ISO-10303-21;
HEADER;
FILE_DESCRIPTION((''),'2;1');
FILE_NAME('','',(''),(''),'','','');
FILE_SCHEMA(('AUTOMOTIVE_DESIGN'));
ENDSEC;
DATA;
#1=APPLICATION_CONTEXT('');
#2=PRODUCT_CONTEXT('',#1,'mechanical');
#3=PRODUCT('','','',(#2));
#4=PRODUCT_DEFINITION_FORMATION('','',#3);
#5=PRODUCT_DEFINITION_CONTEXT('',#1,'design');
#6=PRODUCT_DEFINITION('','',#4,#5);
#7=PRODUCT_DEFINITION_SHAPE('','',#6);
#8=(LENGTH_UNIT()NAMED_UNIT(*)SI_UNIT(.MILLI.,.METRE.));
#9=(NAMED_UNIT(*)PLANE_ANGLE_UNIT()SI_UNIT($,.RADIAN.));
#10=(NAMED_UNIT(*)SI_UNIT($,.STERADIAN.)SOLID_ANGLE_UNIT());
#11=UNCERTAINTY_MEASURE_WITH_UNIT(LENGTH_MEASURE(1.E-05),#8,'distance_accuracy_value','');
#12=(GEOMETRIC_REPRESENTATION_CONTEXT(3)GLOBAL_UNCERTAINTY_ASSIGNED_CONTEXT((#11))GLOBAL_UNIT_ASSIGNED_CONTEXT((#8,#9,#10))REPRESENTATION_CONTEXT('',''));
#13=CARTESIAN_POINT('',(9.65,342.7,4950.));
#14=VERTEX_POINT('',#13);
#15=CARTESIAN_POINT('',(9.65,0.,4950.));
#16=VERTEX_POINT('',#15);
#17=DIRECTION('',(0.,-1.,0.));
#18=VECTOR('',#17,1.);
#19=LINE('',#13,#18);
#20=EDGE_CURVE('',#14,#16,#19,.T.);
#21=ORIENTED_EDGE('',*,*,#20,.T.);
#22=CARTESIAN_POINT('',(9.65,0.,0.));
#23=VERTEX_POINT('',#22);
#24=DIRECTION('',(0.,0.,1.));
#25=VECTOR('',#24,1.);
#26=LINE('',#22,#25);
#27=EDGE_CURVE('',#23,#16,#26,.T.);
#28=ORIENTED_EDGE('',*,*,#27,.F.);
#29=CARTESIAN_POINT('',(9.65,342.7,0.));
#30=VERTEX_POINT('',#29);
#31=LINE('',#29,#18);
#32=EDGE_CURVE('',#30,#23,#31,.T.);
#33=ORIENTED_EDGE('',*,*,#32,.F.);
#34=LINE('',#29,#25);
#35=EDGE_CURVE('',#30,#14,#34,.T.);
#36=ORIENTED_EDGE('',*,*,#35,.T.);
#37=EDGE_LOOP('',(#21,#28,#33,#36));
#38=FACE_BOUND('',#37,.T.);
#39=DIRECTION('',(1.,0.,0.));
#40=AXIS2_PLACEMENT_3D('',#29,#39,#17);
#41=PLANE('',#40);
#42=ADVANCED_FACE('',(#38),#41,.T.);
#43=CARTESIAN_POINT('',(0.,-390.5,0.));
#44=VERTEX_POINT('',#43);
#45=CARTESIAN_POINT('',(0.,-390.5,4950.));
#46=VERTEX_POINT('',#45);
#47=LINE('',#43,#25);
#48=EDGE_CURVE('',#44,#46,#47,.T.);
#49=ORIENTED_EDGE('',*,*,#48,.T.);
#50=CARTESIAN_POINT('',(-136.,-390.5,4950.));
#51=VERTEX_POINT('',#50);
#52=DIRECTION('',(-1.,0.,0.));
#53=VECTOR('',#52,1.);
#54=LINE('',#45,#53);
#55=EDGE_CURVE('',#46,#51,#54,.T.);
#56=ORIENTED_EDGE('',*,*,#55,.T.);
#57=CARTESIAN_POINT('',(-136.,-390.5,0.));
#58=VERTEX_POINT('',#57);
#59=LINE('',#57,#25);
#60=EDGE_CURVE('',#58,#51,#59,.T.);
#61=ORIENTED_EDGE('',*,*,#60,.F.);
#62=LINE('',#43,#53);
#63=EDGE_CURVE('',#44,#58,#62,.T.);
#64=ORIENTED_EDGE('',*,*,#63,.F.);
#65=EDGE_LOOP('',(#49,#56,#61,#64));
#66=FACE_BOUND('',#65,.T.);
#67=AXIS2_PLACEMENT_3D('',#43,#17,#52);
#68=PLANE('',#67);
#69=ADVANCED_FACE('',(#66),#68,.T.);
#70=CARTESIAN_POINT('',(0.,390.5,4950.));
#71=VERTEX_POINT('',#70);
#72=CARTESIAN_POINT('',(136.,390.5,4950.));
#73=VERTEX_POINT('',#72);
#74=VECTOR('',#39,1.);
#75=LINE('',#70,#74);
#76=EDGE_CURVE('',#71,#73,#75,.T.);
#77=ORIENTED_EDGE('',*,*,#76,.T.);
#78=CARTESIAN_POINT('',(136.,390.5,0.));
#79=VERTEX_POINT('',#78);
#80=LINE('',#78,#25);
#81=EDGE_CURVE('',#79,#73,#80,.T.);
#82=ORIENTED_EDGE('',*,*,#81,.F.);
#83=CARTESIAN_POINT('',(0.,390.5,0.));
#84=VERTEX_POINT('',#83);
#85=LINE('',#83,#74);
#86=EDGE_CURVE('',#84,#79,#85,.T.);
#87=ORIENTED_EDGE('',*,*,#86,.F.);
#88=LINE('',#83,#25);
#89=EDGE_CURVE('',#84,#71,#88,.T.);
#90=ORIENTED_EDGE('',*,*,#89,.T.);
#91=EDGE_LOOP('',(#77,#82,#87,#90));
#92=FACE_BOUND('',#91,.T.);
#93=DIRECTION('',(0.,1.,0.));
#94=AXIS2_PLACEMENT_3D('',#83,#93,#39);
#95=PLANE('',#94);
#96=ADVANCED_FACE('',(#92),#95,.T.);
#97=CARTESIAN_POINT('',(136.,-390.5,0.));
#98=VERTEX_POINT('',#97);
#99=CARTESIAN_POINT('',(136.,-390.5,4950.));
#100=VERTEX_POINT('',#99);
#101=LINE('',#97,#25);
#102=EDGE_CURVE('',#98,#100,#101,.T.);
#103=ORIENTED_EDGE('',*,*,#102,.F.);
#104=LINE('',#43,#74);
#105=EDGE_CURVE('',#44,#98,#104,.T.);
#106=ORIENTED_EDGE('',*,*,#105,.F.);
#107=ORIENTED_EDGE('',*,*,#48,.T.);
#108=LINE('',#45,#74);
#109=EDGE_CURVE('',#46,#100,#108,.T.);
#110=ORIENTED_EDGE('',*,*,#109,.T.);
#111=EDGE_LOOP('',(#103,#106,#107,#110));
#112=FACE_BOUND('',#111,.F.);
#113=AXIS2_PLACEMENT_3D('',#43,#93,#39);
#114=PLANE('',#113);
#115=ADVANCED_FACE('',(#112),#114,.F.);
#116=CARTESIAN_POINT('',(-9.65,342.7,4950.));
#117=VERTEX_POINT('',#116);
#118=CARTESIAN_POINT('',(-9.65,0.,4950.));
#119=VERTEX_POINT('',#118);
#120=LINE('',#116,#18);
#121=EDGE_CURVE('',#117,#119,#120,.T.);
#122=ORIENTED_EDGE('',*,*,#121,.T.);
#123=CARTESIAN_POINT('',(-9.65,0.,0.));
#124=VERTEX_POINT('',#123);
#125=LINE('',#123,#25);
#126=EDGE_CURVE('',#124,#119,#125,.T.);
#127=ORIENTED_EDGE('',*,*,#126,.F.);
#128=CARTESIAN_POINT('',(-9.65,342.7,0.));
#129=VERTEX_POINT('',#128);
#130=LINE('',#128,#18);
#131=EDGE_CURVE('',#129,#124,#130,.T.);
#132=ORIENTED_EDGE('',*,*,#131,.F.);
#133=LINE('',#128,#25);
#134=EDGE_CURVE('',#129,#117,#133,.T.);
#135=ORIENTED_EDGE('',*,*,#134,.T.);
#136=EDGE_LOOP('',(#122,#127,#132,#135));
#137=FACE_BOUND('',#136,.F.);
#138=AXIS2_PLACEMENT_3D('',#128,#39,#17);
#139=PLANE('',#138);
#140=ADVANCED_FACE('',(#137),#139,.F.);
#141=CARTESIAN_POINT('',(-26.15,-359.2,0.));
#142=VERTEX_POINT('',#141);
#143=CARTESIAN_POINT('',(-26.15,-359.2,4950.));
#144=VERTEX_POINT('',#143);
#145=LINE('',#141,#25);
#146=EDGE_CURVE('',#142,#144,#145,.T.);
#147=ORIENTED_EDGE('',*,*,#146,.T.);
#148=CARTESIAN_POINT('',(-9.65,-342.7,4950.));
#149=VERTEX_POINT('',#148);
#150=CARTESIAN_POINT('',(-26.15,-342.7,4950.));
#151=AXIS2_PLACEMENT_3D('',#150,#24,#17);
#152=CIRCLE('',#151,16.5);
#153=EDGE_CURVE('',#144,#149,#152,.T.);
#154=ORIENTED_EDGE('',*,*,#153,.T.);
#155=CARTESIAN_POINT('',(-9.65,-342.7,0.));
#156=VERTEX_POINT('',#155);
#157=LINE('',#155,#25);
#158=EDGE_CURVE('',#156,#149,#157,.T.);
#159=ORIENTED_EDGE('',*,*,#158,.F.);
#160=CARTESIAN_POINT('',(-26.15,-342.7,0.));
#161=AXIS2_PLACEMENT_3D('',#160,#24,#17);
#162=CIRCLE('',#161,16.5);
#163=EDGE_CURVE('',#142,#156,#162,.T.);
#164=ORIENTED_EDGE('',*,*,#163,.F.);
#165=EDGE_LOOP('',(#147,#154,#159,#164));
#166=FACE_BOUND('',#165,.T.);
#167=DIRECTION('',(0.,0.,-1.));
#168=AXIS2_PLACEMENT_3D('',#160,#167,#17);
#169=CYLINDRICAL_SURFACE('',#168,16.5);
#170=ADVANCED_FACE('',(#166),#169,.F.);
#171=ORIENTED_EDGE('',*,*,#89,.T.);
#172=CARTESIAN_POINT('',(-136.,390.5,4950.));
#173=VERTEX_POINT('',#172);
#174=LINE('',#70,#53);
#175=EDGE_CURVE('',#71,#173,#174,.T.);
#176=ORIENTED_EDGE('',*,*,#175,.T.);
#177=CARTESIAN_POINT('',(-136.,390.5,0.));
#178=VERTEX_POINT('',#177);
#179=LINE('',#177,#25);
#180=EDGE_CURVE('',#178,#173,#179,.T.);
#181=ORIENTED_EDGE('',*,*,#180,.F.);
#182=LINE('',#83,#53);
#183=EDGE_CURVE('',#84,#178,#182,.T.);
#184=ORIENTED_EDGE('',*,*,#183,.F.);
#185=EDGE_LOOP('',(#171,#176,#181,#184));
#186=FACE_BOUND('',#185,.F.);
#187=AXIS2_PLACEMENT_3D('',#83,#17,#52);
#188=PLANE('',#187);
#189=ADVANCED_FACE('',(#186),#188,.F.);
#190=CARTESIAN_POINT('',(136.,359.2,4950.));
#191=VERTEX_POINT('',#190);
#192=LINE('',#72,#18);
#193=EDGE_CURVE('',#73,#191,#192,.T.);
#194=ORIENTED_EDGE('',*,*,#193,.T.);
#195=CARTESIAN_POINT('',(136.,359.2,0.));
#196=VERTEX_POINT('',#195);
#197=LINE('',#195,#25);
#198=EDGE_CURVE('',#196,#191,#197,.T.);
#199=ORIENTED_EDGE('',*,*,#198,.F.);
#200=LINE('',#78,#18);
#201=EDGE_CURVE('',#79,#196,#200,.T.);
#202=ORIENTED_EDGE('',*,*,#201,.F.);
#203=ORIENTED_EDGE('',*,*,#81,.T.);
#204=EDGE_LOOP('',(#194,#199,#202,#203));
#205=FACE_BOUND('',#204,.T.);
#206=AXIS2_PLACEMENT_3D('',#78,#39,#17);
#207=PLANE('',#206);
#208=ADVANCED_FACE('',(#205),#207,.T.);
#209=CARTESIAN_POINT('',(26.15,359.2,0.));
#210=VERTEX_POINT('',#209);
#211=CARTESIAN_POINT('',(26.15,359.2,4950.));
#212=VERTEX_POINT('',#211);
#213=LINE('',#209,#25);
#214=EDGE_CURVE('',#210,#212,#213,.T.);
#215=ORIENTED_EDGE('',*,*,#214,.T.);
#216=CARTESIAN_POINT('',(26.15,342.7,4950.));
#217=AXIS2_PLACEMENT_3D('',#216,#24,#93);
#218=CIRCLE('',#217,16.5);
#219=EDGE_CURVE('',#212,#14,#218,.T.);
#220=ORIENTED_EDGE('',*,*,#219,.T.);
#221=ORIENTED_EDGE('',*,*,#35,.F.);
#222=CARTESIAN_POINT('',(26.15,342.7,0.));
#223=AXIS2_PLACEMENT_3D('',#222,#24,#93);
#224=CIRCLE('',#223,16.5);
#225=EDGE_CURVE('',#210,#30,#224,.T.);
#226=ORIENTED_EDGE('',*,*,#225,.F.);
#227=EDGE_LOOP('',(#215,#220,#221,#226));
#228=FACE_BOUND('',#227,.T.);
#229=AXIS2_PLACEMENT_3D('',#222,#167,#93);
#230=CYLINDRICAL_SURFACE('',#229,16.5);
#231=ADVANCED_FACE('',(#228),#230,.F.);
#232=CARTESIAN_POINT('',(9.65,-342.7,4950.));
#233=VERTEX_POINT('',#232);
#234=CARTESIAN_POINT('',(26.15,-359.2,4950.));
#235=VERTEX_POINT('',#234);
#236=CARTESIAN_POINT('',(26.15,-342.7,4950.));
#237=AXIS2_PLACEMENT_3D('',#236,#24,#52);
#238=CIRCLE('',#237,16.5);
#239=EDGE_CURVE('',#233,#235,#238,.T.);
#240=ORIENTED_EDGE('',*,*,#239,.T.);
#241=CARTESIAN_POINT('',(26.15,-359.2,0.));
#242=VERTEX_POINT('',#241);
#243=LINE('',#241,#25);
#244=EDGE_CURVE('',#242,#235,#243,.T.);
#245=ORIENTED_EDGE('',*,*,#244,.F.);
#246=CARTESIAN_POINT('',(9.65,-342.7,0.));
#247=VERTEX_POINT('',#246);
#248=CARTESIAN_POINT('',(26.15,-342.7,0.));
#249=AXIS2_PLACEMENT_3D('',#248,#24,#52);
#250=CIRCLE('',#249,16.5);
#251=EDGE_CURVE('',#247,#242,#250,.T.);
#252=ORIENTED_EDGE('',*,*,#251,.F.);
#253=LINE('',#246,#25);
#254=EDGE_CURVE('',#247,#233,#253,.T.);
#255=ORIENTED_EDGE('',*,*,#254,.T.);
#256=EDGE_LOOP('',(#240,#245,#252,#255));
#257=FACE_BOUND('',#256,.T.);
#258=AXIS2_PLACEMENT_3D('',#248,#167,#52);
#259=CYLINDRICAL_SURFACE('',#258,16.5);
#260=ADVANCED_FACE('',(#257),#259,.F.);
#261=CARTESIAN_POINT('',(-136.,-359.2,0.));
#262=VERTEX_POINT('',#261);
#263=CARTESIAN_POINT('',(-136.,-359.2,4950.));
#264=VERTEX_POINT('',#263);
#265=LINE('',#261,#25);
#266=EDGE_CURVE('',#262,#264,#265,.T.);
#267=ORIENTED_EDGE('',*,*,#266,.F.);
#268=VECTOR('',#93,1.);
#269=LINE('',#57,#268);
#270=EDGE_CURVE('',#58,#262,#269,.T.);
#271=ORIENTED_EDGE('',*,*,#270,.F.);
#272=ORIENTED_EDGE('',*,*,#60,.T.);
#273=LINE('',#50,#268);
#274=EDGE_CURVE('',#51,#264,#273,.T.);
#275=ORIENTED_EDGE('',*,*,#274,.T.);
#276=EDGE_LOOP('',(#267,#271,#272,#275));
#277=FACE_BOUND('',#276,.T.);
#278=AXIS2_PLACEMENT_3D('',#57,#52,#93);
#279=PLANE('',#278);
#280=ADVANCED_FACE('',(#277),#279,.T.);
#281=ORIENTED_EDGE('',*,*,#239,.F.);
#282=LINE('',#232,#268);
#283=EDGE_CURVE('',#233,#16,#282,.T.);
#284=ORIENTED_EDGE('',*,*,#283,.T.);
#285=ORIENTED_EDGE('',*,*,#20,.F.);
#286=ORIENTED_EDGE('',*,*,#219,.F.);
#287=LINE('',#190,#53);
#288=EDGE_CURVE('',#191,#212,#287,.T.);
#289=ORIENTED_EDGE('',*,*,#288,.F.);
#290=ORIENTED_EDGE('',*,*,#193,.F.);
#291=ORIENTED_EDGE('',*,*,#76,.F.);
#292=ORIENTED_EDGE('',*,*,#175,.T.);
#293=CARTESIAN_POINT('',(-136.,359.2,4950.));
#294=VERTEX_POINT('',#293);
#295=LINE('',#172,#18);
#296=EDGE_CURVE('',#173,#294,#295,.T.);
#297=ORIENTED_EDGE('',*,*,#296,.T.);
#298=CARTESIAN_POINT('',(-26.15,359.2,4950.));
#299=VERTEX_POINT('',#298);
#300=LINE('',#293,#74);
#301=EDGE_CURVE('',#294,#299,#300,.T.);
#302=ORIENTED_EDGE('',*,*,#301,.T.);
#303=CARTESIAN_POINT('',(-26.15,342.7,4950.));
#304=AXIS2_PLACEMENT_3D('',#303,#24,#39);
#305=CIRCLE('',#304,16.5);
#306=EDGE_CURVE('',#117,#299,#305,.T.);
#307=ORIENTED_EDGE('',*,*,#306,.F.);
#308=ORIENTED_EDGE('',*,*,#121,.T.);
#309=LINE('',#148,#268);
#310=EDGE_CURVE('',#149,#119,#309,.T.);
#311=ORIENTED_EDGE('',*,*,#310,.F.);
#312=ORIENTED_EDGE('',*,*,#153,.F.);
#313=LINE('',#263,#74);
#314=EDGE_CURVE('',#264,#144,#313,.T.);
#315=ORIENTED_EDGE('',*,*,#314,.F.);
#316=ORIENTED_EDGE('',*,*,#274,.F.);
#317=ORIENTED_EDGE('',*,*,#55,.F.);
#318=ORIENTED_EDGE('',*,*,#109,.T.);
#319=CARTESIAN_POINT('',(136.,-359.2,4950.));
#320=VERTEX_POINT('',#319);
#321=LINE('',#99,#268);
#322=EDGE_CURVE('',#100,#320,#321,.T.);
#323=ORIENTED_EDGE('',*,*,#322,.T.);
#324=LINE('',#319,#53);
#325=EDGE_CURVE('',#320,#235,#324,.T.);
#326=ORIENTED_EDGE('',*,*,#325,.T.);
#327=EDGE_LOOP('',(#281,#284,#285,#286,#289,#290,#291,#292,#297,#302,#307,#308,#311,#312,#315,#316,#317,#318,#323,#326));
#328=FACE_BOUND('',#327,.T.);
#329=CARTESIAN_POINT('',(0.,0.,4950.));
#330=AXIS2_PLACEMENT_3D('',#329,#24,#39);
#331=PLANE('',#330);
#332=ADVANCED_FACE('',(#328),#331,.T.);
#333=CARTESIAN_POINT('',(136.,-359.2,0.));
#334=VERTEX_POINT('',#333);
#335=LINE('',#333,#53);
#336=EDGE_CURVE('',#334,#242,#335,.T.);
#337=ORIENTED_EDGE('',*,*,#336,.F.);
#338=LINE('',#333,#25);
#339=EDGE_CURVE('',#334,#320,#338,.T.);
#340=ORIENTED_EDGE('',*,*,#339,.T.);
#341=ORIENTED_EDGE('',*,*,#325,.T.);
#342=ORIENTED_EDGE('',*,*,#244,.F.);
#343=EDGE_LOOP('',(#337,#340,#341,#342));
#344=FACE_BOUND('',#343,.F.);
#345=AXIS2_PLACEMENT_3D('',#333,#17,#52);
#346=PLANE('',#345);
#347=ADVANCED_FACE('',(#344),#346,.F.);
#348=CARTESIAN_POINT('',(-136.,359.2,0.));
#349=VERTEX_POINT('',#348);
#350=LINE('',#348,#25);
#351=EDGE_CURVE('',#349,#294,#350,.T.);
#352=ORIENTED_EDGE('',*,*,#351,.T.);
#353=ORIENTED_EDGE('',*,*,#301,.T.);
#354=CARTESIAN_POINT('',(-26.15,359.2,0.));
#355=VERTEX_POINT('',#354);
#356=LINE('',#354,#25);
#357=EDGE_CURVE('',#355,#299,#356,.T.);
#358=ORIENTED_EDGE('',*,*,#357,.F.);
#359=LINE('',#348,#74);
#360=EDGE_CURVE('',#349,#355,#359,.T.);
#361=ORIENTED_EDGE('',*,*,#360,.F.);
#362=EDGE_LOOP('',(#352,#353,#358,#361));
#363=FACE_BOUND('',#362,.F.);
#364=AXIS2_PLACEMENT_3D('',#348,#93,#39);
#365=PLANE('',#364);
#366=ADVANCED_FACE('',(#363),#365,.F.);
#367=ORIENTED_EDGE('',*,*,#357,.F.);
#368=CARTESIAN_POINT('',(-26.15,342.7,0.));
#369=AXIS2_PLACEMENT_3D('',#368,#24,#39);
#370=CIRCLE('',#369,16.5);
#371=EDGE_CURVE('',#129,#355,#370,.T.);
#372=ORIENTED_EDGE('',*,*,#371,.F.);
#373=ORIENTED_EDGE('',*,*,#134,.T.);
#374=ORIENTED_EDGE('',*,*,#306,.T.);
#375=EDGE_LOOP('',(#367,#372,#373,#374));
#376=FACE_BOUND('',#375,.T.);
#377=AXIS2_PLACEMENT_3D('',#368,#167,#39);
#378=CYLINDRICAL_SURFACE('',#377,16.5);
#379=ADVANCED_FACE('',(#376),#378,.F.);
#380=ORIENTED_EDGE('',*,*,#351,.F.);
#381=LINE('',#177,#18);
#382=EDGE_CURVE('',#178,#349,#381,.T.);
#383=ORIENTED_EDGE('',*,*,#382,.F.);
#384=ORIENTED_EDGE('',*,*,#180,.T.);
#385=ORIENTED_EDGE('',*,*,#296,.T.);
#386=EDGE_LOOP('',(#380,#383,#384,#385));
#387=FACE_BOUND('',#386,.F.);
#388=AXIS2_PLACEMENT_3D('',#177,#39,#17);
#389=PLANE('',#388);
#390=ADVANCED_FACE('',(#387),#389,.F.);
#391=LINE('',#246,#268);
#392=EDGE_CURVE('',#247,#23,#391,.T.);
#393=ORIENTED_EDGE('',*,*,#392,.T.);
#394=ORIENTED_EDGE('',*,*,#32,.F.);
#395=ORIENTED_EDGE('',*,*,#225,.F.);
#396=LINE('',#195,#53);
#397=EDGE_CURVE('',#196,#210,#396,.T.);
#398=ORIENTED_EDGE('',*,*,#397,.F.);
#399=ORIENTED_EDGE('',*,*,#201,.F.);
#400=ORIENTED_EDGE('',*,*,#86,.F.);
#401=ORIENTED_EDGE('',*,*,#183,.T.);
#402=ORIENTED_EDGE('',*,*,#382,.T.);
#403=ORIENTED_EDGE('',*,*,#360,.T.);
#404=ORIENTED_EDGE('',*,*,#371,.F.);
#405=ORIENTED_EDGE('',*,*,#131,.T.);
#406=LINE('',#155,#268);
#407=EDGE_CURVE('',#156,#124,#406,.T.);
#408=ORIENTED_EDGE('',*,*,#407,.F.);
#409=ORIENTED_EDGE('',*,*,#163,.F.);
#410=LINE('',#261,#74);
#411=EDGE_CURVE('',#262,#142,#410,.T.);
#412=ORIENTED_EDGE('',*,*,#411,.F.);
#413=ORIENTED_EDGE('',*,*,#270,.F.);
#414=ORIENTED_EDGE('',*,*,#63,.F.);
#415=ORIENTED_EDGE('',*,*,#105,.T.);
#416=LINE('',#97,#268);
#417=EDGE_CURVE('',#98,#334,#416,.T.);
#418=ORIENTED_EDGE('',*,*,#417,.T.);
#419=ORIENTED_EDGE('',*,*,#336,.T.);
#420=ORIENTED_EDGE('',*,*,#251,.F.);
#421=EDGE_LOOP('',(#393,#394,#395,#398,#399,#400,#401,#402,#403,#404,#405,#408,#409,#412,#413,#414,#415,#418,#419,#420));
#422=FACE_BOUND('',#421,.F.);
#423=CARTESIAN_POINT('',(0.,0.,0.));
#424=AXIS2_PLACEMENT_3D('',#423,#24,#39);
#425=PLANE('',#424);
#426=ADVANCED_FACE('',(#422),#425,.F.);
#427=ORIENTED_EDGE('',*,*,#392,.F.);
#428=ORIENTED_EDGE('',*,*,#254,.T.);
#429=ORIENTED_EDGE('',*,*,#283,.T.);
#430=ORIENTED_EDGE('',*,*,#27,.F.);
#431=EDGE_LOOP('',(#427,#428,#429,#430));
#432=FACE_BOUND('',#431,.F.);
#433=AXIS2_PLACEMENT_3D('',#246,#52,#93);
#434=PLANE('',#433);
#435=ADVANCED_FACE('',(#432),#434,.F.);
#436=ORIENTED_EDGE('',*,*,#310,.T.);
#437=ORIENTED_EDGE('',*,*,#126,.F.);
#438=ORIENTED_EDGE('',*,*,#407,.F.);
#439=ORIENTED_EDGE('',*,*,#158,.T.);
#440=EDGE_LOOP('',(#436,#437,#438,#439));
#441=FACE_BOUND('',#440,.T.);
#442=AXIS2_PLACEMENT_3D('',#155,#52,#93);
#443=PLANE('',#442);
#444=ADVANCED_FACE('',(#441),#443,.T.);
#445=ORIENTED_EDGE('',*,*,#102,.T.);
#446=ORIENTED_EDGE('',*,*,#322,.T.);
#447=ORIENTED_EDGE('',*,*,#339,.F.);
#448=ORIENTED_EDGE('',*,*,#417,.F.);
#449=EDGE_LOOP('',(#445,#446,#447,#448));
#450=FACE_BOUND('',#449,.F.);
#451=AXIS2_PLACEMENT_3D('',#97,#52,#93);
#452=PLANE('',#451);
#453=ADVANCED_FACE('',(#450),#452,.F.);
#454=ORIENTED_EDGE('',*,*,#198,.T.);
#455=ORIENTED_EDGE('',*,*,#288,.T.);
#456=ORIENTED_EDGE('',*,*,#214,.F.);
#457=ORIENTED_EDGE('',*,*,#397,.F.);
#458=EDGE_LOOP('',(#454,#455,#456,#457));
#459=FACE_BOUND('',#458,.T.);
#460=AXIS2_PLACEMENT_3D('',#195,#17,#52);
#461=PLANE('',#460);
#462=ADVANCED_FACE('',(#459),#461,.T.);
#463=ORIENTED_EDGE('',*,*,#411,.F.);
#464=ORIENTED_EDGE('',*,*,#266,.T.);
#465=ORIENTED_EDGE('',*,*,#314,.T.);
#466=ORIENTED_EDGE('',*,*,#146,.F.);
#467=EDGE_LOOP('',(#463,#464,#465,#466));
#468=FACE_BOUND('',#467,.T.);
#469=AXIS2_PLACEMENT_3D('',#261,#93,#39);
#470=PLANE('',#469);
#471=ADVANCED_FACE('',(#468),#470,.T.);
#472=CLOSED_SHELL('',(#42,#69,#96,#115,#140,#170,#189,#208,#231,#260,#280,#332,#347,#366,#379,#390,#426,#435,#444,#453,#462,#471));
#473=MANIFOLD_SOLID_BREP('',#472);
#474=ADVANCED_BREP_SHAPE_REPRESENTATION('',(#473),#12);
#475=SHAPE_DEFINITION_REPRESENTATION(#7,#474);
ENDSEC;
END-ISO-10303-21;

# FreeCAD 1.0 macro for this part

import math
import FreeCAD as App
import Part
import Sketcher

doc = App.newDocument("Part")
params = doc.addObject("Spreadsheet::Sheet", "Params")
for row, (alias, value) in enumerate([
    ("sketch1_radius", "16.5 mm"),
    ("sketch1_height", "31.3 mm"),
    ("pad1_length", "4950 mm"),
], start=1):
    params.set(f"A{row}", alias)
    params.set(f"B{row}", "=" + value)
    params.setAlias(f"B{row}", alias)

body = doc.addObject("PartDesign::Body", "Body")

# Sketch on XY plane
sketch1 = doc.addObject("Sketcher::SketchObject", "Sketch")
body.addObject(sketch1)
sketch1.AttachmentSupport = (doc.XY_Plane, [""])
sketch1.MapMode = "FlatFace"
sketch1.addGeometry([
    Part.LineSegment(App.Vector(-136, -359.2, 0), App.Vector(-136, -390.5, 0)),  # 0
    Part.LineSegment(App.Vector(-136, -390.5, 0), App.Vector(136, -390.5, 0)),  # 1
    Part.LineSegment(App.Vector(136, -390.5, 0), App.Vector(136, -359.2, 0)),  # 2
    Part.LineSegment(App.Vector(136, -359.2, 0), App.Vector(26.15, -359.2, 0)),  # 3
    Part.ArcOfCircle(Part.Circle(App.Vector(26.15, -342.7, 0), App.Vector(0, 0, 1), 16.5), math.radians(180), math.radians(270)),  # 4
    Part.LineSegment(App.Vector(9.65, -342.7, 0), App.Vector(9.65, 342.7, 0)),  # 5
    Part.ArcOfCircle(Part.Circle(App.Vector(26.15, 342.7, 0), App.Vector(0, 0, 1), 16.5), math.radians(90), math.radians(180)),  # 6
    Part.LineSegment(App.Vector(26.15, 359.2, 0), App.Vector(136, 359.2, 0)),  # 7
    Part.LineSegment(App.Vector(136, 359.2, 0), App.Vector(136, 390.5, 0)),  # 8
    Part.LineSegment(App.Vector(136, 390.5, 0), App.Vector(-136, 390.5, 0)),  # 9
    Part.LineSegment(App.Vector(-136, 390.5, 0), App.Vector(-136, 359.2, 0)),  # 10
    Part.LineSegment(App.Vector(-136, 359.2, 0), App.Vector(-26.15, 359.2, 0)),  # 11
    Part.ArcOfCircle(Part.Circle(App.Vector(-26.15, 342.7, 0), App.Vector(0, 0, 1), 16.5), math.radians(0), math.radians(90)),  # 12
    Part.LineSegment(App.Vector(-9.65, 342.7, 0), App.Vector(-9.65, -342.7, 0)),  # 13
    Part.ArcOfCircle(Part.Circle(App.Vector(-26.15, -342.7, 0), App.Vector(0, 0, 1), 16.5), math.radians(-90), math.radians(0)),  # 14
    Part.LineSegment(App.Vector(-26.15, -359.2, 0), App.Vector(-136, -359.2, 0)),  # 15
], False)
sketch1.addConstraint([
    Sketcher.Constraint("Coincident", 0, 2, 1, 1),
    Sketcher.Constraint("Coincident", 1, 2, 2, 1),
    Sketcher.Constraint("Coincident", 2, 2, 3, 1),
    Sketcher.Constraint("Tangent", 3, 2, 4, 2),
    Sketcher.Constraint("Tangent", 4, 1, 5, 1),
    Sketcher.Constraint("Tangent", 5, 2, 6, 2),
    Sketcher.Constraint("Tangent", 6, 1, 7, 1),
    Sketcher.Constraint("Coincident", 7, 2, 8, 1),
    Sketcher.Constraint("Coincident", 8, 2, 9, 1),
    Sketcher.Constraint("Coincident", 9, 2, 10, 1),
    Sketcher.Constraint("Coincident", 10, 2, 11, 1),
    Sketcher.Constraint("Tangent", 11, 2, 12, 2),
    Sketcher.Constraint("Tangent", 12, 1, 13, 1),
    Sketcher.Constraint("Tangent", 13, 2, 14, 2),
    Sketcher.Constraint("Tangent", 14, 1, 15, 1),
    Sketcher.Constraint("Coincident", 15, 2, 0, 1),
    Sketcher.Constraint("Vertical", 0),
    Sketcher.Constraint("Horizontal", 1),
    Sketcher.Constraint("Vertical", 2),
    Sketcher.Constraint("Horizontal", 3),
    Sketcher.Constraint("Vertical", 5),
    Sketcher.Constraint("Horizontal", 7),
    Sketcher.Constraint("Vertical", 8),
    Sketcher.Constraint("Horizontal", 9),
    Sketcher.Constraint("Vertical", 10),
    Sketcher.Constraint("Horizontal", 11),
    Sketcher.Constraint("Vertical", 13),
    Sketcher.Constraint("Horizontal", 15),
    Sketcher.Constraint("Equal", 4, 6),
    Sketcher.Constraint("Equal", 6, 12),
    Sketcher.Constraint("Equal", 12, 14),
    Sketcher.Constraint("Symmetric", 4, 3, 12, 3, -1, 1),
    Sketcher.Constraint("Symmetric", 0, 2, 8, 2, -1, 1),
    Sketcher.Constraint("Symmetric", 7, 2, 10, 2, -2),
    Sketcher.Constraint("Symmetric", 2, 2, 15, 2, -2),
    Sketcher.Constraint("Radius", 4, 16.5),
    Sketcher.Constraint("DistanceY", 0, 2, 0, 1, 31.3),
    Sketcher.Constraint("DistanceX", 0, 2, -1, 1, 136.0),
    Sketcher.Constraint("DistanceY", 0, 2, -1, 1, 390.5),
    Sketcher.Constraint("DistanceX", -1, 1, 4, 1, 9.65),
])
sketch1.setExpression("Constraints[35]", "Params.sketch1_radius")
sketch1.setExpression("Constraints[36]", "Params.sketch1_height")
pad1 = doc.addObject("PartDesign::Pad", "Pad")
body.addObject(pad1)
pad1.Profile = sketch1
pad1.setExpression("Length", "Params.pad1_length")

doc.recompute()
